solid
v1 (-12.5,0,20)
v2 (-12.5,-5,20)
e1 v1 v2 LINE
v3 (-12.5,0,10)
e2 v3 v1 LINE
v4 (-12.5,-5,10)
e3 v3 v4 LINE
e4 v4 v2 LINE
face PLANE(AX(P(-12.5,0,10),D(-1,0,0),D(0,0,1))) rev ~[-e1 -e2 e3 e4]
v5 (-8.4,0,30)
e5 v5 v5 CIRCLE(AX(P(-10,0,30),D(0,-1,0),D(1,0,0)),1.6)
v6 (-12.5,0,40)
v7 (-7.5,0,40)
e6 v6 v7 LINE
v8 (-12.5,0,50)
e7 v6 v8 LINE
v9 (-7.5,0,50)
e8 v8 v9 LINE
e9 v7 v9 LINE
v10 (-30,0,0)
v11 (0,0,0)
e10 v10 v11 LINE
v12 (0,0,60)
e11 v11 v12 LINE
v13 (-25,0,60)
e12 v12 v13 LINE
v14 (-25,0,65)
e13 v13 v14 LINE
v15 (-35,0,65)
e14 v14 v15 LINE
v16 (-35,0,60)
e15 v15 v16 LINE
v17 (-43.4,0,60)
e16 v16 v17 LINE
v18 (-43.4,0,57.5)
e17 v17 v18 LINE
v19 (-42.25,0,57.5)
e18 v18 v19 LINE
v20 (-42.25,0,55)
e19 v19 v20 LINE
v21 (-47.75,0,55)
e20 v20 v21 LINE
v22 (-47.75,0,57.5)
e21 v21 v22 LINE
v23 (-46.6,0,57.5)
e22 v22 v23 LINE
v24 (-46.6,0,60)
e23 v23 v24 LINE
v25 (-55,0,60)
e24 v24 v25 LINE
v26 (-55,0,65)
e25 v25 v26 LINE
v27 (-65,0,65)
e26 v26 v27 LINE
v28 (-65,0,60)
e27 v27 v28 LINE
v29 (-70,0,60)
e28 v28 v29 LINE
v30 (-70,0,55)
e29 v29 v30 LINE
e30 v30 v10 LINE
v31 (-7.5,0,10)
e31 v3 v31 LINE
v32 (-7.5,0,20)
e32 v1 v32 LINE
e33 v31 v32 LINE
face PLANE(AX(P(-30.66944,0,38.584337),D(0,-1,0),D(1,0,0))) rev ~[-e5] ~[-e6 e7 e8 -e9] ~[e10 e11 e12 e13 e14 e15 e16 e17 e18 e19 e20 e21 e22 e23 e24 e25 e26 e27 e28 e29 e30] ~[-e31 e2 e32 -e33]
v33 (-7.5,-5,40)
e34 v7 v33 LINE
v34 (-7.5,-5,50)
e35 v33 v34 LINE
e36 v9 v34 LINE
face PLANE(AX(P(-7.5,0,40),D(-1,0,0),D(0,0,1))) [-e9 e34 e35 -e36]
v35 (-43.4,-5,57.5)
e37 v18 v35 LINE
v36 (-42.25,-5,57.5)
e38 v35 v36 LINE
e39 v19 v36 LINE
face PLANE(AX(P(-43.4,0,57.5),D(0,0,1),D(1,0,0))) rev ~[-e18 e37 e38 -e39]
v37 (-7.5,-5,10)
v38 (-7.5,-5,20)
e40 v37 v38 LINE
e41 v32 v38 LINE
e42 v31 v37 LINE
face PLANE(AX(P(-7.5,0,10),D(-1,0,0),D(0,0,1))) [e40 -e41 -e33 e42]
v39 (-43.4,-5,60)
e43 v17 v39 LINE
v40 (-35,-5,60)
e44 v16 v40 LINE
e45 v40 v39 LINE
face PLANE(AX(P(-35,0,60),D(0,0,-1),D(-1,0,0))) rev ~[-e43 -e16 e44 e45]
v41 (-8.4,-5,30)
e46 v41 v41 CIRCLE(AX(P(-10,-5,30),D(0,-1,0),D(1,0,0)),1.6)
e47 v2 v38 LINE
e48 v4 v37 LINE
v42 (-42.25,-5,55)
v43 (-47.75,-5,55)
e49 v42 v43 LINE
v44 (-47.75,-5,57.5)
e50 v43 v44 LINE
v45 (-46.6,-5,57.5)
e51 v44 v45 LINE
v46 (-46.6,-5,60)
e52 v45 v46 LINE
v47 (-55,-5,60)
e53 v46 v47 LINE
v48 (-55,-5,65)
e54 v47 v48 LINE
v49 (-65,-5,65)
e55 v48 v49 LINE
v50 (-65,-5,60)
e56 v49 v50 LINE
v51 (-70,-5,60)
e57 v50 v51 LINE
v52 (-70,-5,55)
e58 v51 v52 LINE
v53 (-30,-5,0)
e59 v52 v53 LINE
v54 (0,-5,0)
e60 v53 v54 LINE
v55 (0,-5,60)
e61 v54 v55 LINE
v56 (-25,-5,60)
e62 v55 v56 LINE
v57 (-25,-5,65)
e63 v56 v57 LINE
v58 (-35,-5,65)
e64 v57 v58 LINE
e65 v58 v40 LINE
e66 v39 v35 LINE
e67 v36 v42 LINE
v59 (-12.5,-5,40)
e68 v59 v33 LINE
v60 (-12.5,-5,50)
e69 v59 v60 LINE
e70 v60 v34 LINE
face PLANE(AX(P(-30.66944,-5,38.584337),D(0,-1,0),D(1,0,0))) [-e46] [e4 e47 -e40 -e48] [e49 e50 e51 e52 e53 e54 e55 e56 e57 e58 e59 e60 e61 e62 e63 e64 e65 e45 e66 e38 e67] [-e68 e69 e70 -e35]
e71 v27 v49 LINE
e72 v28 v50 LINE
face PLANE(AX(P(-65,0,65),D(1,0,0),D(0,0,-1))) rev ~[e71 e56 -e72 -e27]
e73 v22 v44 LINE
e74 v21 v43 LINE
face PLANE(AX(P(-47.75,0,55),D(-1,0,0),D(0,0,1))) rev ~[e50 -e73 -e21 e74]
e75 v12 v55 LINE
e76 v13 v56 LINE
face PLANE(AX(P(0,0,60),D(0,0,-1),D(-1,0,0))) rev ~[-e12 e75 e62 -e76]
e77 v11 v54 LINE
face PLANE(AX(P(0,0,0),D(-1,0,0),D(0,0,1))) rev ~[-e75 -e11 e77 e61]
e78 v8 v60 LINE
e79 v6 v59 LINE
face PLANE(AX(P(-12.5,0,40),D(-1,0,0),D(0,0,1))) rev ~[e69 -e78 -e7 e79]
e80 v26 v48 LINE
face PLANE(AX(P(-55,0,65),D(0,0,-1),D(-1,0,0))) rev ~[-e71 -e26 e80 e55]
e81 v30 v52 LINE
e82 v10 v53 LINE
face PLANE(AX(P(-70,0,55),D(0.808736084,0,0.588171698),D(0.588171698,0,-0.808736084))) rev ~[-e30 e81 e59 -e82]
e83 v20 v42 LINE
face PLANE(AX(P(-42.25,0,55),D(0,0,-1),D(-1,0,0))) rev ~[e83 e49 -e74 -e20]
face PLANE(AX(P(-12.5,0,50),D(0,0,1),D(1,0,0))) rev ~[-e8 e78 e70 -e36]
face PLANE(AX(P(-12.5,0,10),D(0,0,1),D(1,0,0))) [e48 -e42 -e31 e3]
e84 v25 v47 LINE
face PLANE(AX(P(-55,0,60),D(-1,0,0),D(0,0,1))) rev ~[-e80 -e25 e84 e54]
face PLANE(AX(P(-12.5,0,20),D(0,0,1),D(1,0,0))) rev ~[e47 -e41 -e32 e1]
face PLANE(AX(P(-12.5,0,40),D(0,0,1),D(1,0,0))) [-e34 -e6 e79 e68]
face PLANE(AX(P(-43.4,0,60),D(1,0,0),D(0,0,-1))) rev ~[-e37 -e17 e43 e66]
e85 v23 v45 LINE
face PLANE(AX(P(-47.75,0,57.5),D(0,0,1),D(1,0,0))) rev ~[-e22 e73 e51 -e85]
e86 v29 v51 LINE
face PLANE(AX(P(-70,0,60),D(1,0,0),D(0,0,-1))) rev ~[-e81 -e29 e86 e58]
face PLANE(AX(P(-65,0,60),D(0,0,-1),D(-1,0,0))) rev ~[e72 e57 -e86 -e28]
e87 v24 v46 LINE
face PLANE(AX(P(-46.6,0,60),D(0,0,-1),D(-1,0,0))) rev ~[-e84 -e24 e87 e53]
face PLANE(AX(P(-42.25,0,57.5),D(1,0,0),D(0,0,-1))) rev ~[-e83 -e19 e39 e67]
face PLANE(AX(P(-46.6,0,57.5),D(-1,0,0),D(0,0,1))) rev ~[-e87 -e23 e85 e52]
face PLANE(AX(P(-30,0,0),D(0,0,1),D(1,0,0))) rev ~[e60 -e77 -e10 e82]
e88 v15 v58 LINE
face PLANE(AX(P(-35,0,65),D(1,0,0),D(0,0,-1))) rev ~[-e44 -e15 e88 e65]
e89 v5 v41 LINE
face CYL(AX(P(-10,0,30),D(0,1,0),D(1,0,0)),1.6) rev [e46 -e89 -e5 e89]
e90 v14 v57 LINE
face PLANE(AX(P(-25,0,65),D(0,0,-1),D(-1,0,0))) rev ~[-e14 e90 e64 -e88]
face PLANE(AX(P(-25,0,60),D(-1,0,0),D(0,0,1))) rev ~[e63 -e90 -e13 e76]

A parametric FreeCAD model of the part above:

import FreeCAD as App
import Part
import Sketcher

doc = App.newDocument("Part")
body = doc.addObject("PartDesign::Body", "Body")

# Sketch on XZ plane
sketch1 = doc.addObject("Sketcher::SketchObject", "Sketch")
body.addObject(sketch1)
sketch1.AttachmentSupport = (doc.XZ_Plane, [""])
sketch1.MapMode = "FlatFace"
sketch1.addGeometry([
    Part.LineSegment(App.Vector(-30, 0, 0), App.Vector(0, 0, 0)),  # 0
    Part.LineSegment(App.Vector(0, 0, 0), App.Vector(0, 60, 0)),  # 1
    Part.LineSegment(App.Vector(0, 60, 0), App.Vector(-25, 60, 0)),  # 2
    Part.LineSegment(App.Vector(-25, 60, 0), App.Vector(-25, 65, 0)),  # 3
    Part.LineSegment(App.Vector(-25, 65, 0), App.Vector(-35, 65, 0)),  # 4
    Part.LineSegment(App.Vector(-35, 65, 0), App.Vector(-35, 60, 0)),  # 5
    Part.LineSegment(App.Vector(-35, 60, 0), App.Vector(-43.4, 60, 0)),  # 6
    Part.LineSegment(App.Vector(-43.4, 60, 0), App.Vector(-43.4, 57.5, 0)),  # 7
    Part.LineSegment(App.Vector(-43.4, 57.5, 0), App.Vector(-42.2, 57.5, 0)),  # 8
    Part.LineSegment(App.Vector(-42.2, 57.5, 0), App.Vector(-42.2, 55, 0)),  # 9
    Part.LineSegment(App.Vector(-42.2, 55, 0), App.Vector(-47.8, 55, 0)),  # 10
    Part.LineSegment(App.Vector(-47.8, 55, 0), App.Vector(-47.8, 57.5, 0)),  # 11
    Part.LineSegment(App.Vector(-47.8, 57.5, 0), App.Vector(-46.6, 57.5, 0)),  # 12
    Part.LineSegment(App.Vector(-46.6, 57.5, 0), App.Vector(-46.6, 60, 0)),  # 13
    Part.LineSegment(App.Vector(-46.6, 60, 0), App.Vector(-55, 60, 0)),  # 14
    Part.LineSegment(App.Vector(-55, 60, 0), App.Vector(-55, 65, 0)),  # 15
    Part.LineSegment(App.Vector(-55, 65, 0), App.Vector(-65, 65, 0)),  # 16
    Part.LineSegment(App.Vector(-65, 65, 0), App.Vector(-65, 60, 0)),  # 17
    Part.LineSegment(App.Vector(-65, 60, 0), App.Vector(-70, 60, 0)),  # 18
    Part.LineSegment(App.Vector(-70, 60, 0), App.Vector(-70, 55, 0)),  # 19
    Part.LineSegment(App.Vector(-70, 55, 0), App.Vector(-30, 0, 0)),  # 20
    Part.LineSegment(App.Vector(-7.5, 10, 0), App.Vector(-12.5, 10, 0)),  # 21
    Part.LineSegment(App.Vector(-12.5, 10, 0), App.Vector(-12.5, 20, 0)),  # 22
    Part.LineSegment(App.Vector(-12.5, 20, 0), App.Vector(-7.5, 20, 0)),  # 23
    Part.LineSegment(App.Vector(-7.5, 20, 0), App.Vector(-7.5, 10, 0)),  # 24
    Part.Circle(App.Vector(-10, 30, 0), App.Vector(0, 0, 1), 1.6),  # 25
    Part.LineSegment(App.Vector(-7.5, 40, 0), App.Vector(-12.5, 40, 0)),  # 26
    Part.LineSegment(App.Vector(-12.5, 40, 0), App.Vector(-12.5, 50, 0)),  # 27
    Part.LineSegment(App.Vector(-12.5, 50, 0), App.Vector(-7.5, 50, 0)),  # 28
    Part.LineSegment(App.Vector(-7.5, 50, 0), App.Vector(-7.5, 40, 0)),  # 29
], False)
sketch1.addConstraint([
    Sketcher.Constraint("Coincident", 0, 2, 1, 1),
    Sketcher.Constraint("Coincident", 1, 2, 2, 1),
    Sketcher.Constraint("Coincident", 2, 2, 3, 1),
    Sketcher.Constraint("Coincident", 3, 2, 4, 1),
    Sketcher.Constraint("Coincident", 4, 2, 5, 1),
    Sketcher.Constraint("Coincident", 5, 2, 6, 1),
    Sketcher.Constraint("Coincident", 6, 2, 7, 1),
    Sketcher.Constraint("Coincident", 7, 2, 8, 1),
    Sketcher.Constraint("Coincident", 8, 2, 9, 1),
    Sketcher.Constraint("Coincident", 9, 2, 10, 1),
    Sketcher.Constraint("Coincident", 10, 2, 11, 1),
    Sketcher.Constraint("Coincident", 11, 2, 12, 1),
    Sketcher.Constraint("Coincident", 12, 2, 13, 1),
    Sketcher.Constraint("Coincident", 13, 2, 14, 1),
    Sketcher.Constraint("Coincident", 14, 2, 15, 1),
    Sketcher.Constraint("Coincident", 15, 2, 16, 1),
    Sketcher.Constraint("Coincident", 16, 2, 17, 1),
    Sketcher.Constraint("Coincident", 17, 2, 18, 1),
    Sketcher.Constraint("Coincident", 18, 2, 19, 1),
    Sketcher.Constraint("Coincident", 19, 2, 20, 1),
    Sketcher.Constraint("Coincident", 20, 2, 0, 1),
    Sketcher.Constraint("Coincident", 21, 2, 22, 1),
    Sketcher.Constraint("Coincident", 22, 2, 23, 1),
    Sketcher.Constraint("Coincident", 23, 2, 24, 1),
    Sketcher.Constraint("Coincident", 24, 2, 21, 1),
    Sketcher.Constraint("Coincident", 26, 2, 27, 1),
    Sketcher.Constraint("Coincident", 27, 2, 28, 1),
    Sketcher.Constraint("Coincident", 28, 2, 29, 1),
    Sketcher.Constraint("Coincident", 29, 2, 26, 1),
    Sketcher.Constraint("Horizontal", 0),
    Sketcher.Constraint("Vertical", 1),
    Sketcher.Constraint("Horizontal", 2),
    Sketcher.Constraint("Vertical", 3),
    Sketcher.Constraint("Horizontal", 4),
    Sketcher.Constraint("Vertical", 5),
    Sketcher.Constraint("Horizontal", 6),
    Sketcher.Constraint("Vertical", 7),
    Sketcher.Constraint("Horizontal", 8),
    Sketcher.Constraint("Vertical", 9),
    Sketcher.Constraint("Horizontal", 10),
    Sketcher.Constraint("Vertical", 11),
    Sketcher.Constraint("Horizontal", 12),
    Sketcher.Constraint("Vertical", 13),
    Sketcher.Constraint("Horizontal", 14),
    Sketcher.Constraint("Vertical", 15),
    Sketcher.Constraint("Horizontal", 16),
    Sketcher.Constraint("Vertical", 17),
    Sketcher.Constraint("Horizontal", 18),
    Sketcher.Constraint("Vertical", 19),
    Sketcher.Constraint("Horizontal", 21),
    Sketcher.Constraint("Vertical", 22),
    Sketcher.Constraint("Horizontal", 23),
    Sketcher.Constraint("Vertical", 24),
    Sketcher.Constraint("Horizontal", 26),
    Sketcher.Constraint("Vertical", 27),
    Sketcher.Constraint("Horizontal", 28),
    Sketcher.Constraint("Vertical", 29),
    Sketcher.Constraint("Coincident", 0, 2, -1, 1),
    Sketcher.Constraint("Horizontal", 2, 2, 5, 2),
    Sketcher.Constraint("Horizontal", 8, 2, 11, 2),
    Sketcher.Constraint("Horizontal", 6, 2, 13, 2),
    Sketcher.Constraint("Horizontal", 4, 2, 15, 2),
    Sketcher.Constraint("Horizontal", 14, 2, 17, 2),
    Sketcher.Constraint("Horizontal", 10, 2, 19, 2),
    Sketcher.Constraint("Vertical", 22, 2, 26, 2),
    Sketcher.Constraint("Vertical", 24, 2, 28, 2),
    Sketcher.Constraint("Equal", 8, 12),
    Sketcher.Constraint("Equal", 6, 14),
    Sketcher.Constraint("Equal", 4, 16),
    Sketcher.Constraint("Equal", 18, 21),
    Sketcher.Constraint("Equal", 28, 3),
    Sketcher.Constraint("Equal", 7, 9),
    Sketcher.Constraint("Equal", 17, 19),
    Sketcher.Constraint("Equal", 16, 22),
    Sketcher.Constraint("Equal", 24, 27),
    Sketcher.Constraint("Diameter", 25, 3.2),
    Sketcher.Constraint("DistanceX", 0, 1, 0, 2, 30.0),
    Sketcher.Constraint("DistanceX", 2, 2, 2, 1, 25.0),
    Sketcher.Constraint("DistanceX", 4, 2, 4, 1, 10.0),
    Sketcher.Constraint("DistanceX", 18, 2, 18, 1, 5.0),
    Sketcher.Constraint("DistanceY", 1, 1, 1, 2, 60.0),
    Sketcher.Constraint("DistanceX", 6, 2, 6, 1, 8.4),
    Sketcher.Constraint("DistanceX", 10, 2, 10, 1, 5.5),
    Sketcher.Constraint("DistanceX", 25, 3, -1, 1, 10.0),
    Sketcher.Constraint("DistanceY", -1, 1, 25, 3, 30.0),
    Sketcher.Constraint("DistanceX", 14, 2, -1, 1, 55.0),
    Sketcher.Constraint("DistanceY", -1, 1, 21, 2, 10.0),
    Sketcher.Constraint("DistanceY", -1, 1, 26, 2, 40.0),
    Sketcher.Constraint("DistanceX", 21, 2, -1, 1, 12.5),
])
pad1 = doc.addObject("PartDesign::Pad", "Pad")
body.addObject(pad1)
pad1.Profile = sketch1
pad1.Length = 5

doc.recompute()
